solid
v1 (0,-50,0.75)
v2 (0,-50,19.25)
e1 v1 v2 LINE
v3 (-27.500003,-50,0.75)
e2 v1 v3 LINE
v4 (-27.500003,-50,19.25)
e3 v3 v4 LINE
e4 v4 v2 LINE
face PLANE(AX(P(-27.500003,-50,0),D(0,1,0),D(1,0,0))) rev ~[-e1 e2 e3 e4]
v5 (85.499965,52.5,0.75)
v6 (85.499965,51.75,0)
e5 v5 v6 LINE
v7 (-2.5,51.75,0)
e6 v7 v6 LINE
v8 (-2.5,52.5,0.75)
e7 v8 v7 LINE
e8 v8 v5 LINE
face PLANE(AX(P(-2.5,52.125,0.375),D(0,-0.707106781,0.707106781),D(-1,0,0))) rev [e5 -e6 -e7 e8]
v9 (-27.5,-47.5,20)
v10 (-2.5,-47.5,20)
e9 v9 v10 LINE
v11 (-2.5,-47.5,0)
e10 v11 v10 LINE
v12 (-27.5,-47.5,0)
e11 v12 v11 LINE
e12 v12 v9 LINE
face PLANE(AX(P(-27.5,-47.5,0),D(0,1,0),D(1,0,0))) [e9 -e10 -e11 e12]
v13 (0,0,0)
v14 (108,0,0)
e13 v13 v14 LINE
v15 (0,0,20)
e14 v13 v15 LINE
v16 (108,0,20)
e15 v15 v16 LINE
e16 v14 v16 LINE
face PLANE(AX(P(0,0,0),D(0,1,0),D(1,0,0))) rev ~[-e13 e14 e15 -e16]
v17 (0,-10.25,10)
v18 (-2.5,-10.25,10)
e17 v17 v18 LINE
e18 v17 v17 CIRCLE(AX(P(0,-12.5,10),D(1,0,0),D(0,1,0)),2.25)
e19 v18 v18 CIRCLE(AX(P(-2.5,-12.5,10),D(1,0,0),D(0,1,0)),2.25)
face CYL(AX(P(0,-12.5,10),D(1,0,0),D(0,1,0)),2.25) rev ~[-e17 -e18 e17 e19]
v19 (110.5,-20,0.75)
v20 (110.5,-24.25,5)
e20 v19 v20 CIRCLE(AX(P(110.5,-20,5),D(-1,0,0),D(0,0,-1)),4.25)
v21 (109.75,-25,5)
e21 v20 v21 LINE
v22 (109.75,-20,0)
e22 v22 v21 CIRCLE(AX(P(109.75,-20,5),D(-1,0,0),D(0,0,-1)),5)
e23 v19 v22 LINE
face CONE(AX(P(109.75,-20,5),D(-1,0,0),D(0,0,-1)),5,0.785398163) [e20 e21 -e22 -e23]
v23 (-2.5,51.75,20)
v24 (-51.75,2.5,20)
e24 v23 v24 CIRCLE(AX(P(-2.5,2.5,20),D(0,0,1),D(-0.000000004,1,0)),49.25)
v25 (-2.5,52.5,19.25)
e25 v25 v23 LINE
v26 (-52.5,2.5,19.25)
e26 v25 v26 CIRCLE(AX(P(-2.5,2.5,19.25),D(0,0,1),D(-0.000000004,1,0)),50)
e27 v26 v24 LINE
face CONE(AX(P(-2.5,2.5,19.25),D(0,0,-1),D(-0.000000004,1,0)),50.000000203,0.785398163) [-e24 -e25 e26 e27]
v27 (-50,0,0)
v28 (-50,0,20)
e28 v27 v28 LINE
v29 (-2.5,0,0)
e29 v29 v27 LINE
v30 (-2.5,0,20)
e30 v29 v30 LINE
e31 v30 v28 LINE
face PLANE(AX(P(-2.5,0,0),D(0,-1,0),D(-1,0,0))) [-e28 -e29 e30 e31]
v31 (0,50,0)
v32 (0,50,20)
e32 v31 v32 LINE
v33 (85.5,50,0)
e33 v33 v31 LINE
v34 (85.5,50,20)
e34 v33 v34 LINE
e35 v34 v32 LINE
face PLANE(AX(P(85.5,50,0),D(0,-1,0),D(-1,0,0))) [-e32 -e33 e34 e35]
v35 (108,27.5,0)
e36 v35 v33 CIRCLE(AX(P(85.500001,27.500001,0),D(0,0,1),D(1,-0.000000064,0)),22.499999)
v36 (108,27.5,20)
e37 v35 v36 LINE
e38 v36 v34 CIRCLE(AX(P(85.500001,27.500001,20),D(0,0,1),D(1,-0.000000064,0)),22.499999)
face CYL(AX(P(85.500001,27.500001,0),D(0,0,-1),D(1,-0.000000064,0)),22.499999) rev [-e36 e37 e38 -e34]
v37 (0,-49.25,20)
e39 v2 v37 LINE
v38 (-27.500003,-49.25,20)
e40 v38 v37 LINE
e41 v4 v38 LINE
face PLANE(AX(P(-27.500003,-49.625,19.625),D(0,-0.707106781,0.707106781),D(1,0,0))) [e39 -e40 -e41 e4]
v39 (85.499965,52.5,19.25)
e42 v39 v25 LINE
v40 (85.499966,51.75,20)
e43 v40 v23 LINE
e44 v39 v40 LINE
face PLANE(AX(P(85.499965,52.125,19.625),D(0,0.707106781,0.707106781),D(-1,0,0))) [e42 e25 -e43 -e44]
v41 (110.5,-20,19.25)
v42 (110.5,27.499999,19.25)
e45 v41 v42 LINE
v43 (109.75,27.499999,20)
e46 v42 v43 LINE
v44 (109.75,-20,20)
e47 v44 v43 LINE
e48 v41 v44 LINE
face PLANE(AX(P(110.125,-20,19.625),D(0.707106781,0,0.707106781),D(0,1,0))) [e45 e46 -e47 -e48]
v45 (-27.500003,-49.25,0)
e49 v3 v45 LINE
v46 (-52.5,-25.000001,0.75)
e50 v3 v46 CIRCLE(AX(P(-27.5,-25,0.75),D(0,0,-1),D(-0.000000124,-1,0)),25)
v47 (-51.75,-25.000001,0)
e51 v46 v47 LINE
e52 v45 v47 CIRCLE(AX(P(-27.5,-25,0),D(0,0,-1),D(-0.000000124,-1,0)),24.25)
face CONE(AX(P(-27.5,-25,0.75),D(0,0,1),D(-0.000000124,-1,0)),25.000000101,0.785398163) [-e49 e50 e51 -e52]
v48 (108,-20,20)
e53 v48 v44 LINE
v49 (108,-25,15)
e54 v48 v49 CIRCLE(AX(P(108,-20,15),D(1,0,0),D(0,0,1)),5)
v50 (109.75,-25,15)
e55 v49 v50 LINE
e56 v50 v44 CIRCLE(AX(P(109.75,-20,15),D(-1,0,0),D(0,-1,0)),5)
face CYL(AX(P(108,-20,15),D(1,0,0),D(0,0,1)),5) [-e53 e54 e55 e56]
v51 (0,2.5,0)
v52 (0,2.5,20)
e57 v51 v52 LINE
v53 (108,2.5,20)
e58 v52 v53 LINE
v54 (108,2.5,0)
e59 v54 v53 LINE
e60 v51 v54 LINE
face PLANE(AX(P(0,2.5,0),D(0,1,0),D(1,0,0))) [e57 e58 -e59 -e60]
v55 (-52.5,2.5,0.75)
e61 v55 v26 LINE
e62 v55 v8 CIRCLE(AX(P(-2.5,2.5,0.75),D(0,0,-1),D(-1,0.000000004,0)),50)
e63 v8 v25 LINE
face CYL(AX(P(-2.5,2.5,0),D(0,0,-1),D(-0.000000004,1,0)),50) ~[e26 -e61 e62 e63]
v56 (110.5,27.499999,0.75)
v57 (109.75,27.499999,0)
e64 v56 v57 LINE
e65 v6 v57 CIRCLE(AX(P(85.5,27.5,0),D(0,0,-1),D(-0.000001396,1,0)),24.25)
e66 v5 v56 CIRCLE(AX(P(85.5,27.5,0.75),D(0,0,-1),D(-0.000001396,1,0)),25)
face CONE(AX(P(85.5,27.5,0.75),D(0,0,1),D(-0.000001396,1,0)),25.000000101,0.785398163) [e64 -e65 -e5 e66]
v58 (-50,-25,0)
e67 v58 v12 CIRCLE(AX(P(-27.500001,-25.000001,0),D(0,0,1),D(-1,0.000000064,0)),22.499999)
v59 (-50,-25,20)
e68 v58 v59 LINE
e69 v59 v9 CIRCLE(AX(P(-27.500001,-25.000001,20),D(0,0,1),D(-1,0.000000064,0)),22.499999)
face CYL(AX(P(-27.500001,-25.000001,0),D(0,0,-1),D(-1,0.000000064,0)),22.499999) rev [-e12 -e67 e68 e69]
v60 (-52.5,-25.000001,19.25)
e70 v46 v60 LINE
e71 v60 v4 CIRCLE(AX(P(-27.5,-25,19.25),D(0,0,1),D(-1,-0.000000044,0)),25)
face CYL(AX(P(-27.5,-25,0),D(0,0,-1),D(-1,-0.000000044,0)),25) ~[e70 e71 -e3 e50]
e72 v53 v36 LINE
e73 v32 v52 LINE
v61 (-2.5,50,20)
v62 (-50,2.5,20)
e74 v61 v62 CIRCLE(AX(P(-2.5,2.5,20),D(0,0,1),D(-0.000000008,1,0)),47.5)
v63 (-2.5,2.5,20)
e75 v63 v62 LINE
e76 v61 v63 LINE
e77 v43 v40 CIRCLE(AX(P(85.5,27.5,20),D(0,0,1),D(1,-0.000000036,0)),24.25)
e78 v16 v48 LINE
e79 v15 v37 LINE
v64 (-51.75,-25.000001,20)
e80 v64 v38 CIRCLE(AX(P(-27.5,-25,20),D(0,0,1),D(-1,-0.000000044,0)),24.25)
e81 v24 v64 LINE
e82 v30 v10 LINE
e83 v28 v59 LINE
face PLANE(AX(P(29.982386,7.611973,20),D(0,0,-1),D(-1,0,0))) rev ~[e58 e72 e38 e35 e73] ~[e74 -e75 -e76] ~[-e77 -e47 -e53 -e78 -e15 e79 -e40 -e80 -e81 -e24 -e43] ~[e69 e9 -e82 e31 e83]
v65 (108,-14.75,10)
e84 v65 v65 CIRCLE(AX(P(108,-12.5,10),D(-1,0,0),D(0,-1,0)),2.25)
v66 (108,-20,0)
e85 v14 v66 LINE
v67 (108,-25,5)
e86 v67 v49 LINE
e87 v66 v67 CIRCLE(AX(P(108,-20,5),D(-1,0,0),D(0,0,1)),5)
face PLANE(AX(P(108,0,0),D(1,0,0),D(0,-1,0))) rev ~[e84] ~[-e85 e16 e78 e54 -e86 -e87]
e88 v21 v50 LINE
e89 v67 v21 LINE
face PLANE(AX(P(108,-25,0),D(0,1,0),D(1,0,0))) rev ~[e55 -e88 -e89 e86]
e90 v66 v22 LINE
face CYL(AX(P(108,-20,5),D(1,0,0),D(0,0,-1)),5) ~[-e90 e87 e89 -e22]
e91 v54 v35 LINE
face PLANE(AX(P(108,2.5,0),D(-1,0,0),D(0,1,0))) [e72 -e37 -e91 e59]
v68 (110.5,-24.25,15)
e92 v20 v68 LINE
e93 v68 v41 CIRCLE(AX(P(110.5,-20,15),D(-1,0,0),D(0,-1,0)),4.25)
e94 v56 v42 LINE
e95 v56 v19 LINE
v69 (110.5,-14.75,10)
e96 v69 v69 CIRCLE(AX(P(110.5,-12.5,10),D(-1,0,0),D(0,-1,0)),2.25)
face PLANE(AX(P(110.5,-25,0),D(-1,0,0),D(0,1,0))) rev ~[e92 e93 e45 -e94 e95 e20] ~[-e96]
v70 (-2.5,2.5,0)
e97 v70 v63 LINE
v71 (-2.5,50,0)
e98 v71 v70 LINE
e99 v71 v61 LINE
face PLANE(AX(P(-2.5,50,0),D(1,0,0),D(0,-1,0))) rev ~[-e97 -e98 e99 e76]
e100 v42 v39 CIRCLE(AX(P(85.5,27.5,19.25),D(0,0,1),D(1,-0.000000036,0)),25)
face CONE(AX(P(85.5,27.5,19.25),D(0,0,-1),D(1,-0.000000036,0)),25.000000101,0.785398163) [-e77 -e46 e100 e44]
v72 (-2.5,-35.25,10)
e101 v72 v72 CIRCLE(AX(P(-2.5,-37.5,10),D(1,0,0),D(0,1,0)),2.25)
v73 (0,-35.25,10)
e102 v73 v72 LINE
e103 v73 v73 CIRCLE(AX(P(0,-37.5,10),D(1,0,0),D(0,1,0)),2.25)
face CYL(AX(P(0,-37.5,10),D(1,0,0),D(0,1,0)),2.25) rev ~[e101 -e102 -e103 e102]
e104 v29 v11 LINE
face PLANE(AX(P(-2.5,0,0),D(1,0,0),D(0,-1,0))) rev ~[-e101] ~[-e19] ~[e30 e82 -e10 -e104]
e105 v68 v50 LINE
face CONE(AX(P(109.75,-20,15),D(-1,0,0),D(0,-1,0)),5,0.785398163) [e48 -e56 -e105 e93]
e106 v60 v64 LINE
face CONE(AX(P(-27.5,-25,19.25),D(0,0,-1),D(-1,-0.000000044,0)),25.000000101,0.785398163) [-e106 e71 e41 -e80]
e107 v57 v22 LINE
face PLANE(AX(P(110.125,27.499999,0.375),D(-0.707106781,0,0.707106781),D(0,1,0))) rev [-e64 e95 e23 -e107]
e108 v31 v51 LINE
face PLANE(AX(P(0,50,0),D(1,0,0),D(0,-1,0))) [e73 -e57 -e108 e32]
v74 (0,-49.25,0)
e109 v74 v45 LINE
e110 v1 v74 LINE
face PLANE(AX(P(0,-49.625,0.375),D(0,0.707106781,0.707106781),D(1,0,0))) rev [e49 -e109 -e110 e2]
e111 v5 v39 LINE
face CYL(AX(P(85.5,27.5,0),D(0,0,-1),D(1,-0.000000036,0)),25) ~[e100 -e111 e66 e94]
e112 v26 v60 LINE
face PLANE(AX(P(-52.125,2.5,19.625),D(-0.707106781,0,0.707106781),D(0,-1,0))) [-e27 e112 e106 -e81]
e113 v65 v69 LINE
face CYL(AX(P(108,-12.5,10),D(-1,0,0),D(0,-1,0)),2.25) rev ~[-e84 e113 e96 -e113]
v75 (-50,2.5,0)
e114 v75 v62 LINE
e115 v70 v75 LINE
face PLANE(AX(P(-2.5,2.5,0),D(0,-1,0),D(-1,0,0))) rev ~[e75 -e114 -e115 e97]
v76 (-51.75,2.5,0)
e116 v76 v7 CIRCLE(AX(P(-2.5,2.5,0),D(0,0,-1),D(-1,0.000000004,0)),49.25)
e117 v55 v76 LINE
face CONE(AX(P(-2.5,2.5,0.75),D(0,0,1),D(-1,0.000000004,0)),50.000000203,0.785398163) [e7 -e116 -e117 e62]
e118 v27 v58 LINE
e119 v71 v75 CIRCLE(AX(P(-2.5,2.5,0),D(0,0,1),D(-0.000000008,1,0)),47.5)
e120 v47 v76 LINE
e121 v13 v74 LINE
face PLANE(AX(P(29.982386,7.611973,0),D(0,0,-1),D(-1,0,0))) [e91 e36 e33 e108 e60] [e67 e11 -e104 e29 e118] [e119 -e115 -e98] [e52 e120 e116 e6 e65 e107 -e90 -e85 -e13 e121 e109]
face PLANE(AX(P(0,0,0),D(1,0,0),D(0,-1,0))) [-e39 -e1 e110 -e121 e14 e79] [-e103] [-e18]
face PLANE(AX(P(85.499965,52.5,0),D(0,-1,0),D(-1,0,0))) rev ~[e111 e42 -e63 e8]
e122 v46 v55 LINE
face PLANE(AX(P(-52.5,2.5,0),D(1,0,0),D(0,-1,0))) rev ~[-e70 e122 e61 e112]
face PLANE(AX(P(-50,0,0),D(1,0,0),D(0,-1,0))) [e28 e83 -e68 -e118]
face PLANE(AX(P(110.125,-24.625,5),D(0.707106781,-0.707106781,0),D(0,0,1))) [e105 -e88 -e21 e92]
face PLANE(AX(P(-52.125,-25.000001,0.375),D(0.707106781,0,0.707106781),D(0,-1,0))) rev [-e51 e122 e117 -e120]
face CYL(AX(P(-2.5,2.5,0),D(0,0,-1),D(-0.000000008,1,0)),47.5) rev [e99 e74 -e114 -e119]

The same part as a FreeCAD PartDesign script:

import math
import FreeCAD as App
import Part
import Sketcher
from FreeCAD import Vector


def edges_at(feature, points):
    """Names of the edges that pass closest to the given points."""
    edges = feature.Shape.Edges
    near = lambda p: min(range(len(edges)), key=lambda i: edges[i].distToShape(Part.Vertex(*p))[0])
    return sorted({f"Edge{near(p) + 1}" for p in points})

doc = App.newDocument("Part")
body = doc.addObject("PartDesign::Body", "Body")

# Sketch on XY plane
sketch1 = body.newObject("Sketcher::SketchObject", "Sketch")
sketch1.AttachmentSupport = (doc.getObject("XY_Plane"), [""])
sketch1.MapMode = "FlatFace"
sketch1.addGeometry([
    Part.LineSegment(Vector(0, -50, 0), Vector(0, 0, 0)),  # 0
    Part.LineSegment(Vector(0, 0, 0), Vector(108, 0, 0)),  # 1
    Part.LineSegment(Vector(108, 0, 0), Vector(108, -25, 0)),  # 2
    Part.LineSegment(Vector(108, -25, 0), Vector(110.5, -25, 0)),  # 3
    Part.LineSegment(Vector(110.5, -25, 0), Vector(110.5, 27.499999, 0)),  # 4
    Part.ArcOfCircle(Part.Circle(Vector(85.5, 27.5, 0), Vector(0, 0, 1), 25), math.radians(-0.000002), math.radians(90.00008)),  # 5
    Part.LineSegment(Vector(85.499965, 52.5, 0), Vector(-2.5, 52.5, 0)),  # 6
    Part.ArcOfCircle(Part.Circle(Vector(-2.5, 2.5, 0), Vector(0, 0, 1), 50), math.radians(90), math.radians(180)),  # 7
    Part.LineSegment(Vector(-52.5, 2.5, 0), Vector(-52.5, -25.000001, 0)),  # 8
    Part.ArcOfCircle(Part.Circle(Vector(-27.5, -25, 0), Vector(0, 0, 1), 25), math.radians(-179.999997), math.radians(-90.000007)),  # 9
    Part.LineSegment(Vector(-27.500003, -50, 0), Vector(0, -50, 0)),  # 10
    Part.LineSegment(Vector(-2.5, 0, 0), Vector(-2.5, -47.5, 0)),  # 11
    Part.LineSegment(Vector(-2.5, -47.5, 0), Vector(-27.5, -47.5, 0)),  # 12
    Part.ArcOfCircle(Part.Circle(Vector(-27.500001, -25.000001, 0), Vector(0, 0, 1), 22.499999), math.radians(179.999996), math.radians(270.000004)),  # 13
    Part.LineSegment(Vector(-50, -25, 0), Vector(-50, 0, 0)),  # 14
    Part.LineSegment(Vector(-50, 0, 0), Vector(-2.5, 0, 0)),  # 15
    Part.LineSegment(Vector(0, 2.5, 0), Vector(0, 50, 0)),  # 16
    Part.LineSegment(Vector(0, 50, 0), Vector(85.5, 50, 0)),  # 17
    Part.ArcOfCircle(Part.Circle(Vector(85.500001, 27.500001, 0), Vector(0, 0, 1), 22.499999), math.radians(-0.000004), math.radians(90.000004)),  # 18
    Part.LineSegment(Vector(108, 27.5, 0), Vector(108, 2.5, 0)),  # 19
    Part.LineSegment(Vector(108, 2.5, 0), Vector(0, 2.5, 0)),  # 20
    Part.LineSegment(Vector(-2.5, 50, 0), Vector(-2.5, 2.5, 0)),  # 21
    Part.LineSegment(Vector(-2.5, 2.5, 0), Vector(-50, 2.5, 0)),  # 22
    Part.ArcOfCircle(Part.Circle(Vector(-2.5, 2.5, 0), Vector(0, 0, 1), 47.5), math.radians(90), math.radians(180)),  # 23
], False)
sketch1.addConstraint([
    Sketcher.Constraint("Coincident", 0, 2, 1, 1),
    Sketcher.Constraint("Coincident", 1, 2, 2, 1),
    Sketcher.Constraint("Coincident", 2, 2, 3, 1),
    Sketcher.Constraint("Coincident", 3, 2, 4, 1),
    Sketcher.Constraint("Coincident", 4, 2, 5, 1),
    Sketcher.Constraint("Coincident", 5, 2, 6, 1),
    Sketcher.Constraint("Coincident", 6, 2, 7, 1),
    Sketcher.Constraint("Coincident", 7, 2, 8, 1),
    Sketcher.Constraint("Coincident", 8, 2, 9, 1),
    Sketcher.Constraint("Coincident", 9, 2, 10, 1),
    Sketcher.Constraint("Coincident", 10, 2, 0, 1),
    Sketcher.Constraint("Coincident", 11, 2, 12, 1),
    Sketcher.Constraint("Coincident", 12, 2, 13, 2),
    Sketcher.Constraint("Coincident", 13, 1, 14, 1),
    Sketcher.Constraint("Coincident", 14, 2, 15, 1),
    Sketcher.Constraint("Coincident", 15, 2, 11, 1),
    Sketcher.Constraint("Coincident", 16, 2, 17, 1),
    Sketcher.Constraint("Coincident", 17, 2, 18, 2),
    Sketcher.Constraint("Coincident", 18, 1, 19, 1),
    Sketcher.Constraint("Coincident", 19, 2, 20, 1),
    Sketcher.Constraint("Coincident", 20, 2, 16, 1),
    Sketcher.Constraint("Coincident", 21, 2, 22, 1),
    Sketcher.Constraint("Coincident", 22, 2, 23, 2),
    Sketcher.Constraint("Coincident", 23, 1, 21, 1),
    Sketcher.Constraint("Vertical", 0),
    Sketcher.Constraint("Horizontal", 1),
    Sketcher.Constraint("Vertical", 2),
    Sketcher.Constraint("Horizontal", 3),
    Sketcher.Constraint("Vertical", 4),
    Sketcher.Constraint("Horizontal", 6),
    Sketcher.Constraint("Vertical", 8),
    Sketcher.Constraint("Horizontal", 10),
    Sketcher.Constraint("Vertical", 11),
    Sketcher.Constraint("Horizontal", 12),
    Sketcher.Constraint("Vertical", 14),
    Sketcher.Constraint("Horizontal", 15),
    Sketcher.Constraint("Vertical", 16),
    Sketcher.Constraint("Horizontal", 17),
    Sketcher.Constraint("Vertical", 19),
    Sketcher.Constraint("Horizontal", 20),
    Sketcher.Constraint("Vertical", 21),
    Sketcher.Constraint("Horizontal", 22),
    Sketcher.Constraint("Coincident", 0, 2, -1, 1),
    Sketcher.Constraint("Coincident", 13, 3, 9, 3),
    Sketcher.Constraint("Coincident", 18, 3, 5, 3),
    Sketcher.Constraint("Coincident", 23, 3, 7, 3),
    Sketcher.Constraint("Coincident", 21, 2, 7, 3),
    Sketcher.Constraint("PointOnObject", 14, 2, -1),
    Sketcher.Constraint("PointOnObject", 16, 2, -2),
    Sketcher.Constraint("Radius", 5, 25.0),
    Sketcher.Constraint("Radius", 7, 50.0),
    Sketcher.Constraint("Radius", 9, 25.0),
    Sketcher.Constraint("Radius", 13, 22.499999),
    Sketcher.Constraint("Radius", 18, 22.499999),
    Sketcher.Constraint("Radius", 23, 47.5),
    Sketcher.Constraint("DistanceX", 1, 1, 1, 2, 108.0),
    Sketcher.Constraint("DistanceX", 12, 2, 12, 1, 25.0),
    Sketcher.Constraint("DistanceX", 20, 2, 20, 1, 108.0),
    Sketcher.Constraint("DistanceY", 0, 1, 0, 2, 50.0),
    Sketcher.Constraint("DistanceY", 2, 2, 2, 1, 25.0),
    Sketcher.Constraint("DistanceY", 14, 1, 14, 2, 25.0),
    Sketcher.Constraint("DistanceY", 19, 2, 19, 1, 25.0),
    Sketcher.Constraint("DistanceX", 15, 1, 15, 2, 47.5),
    Sketcher.Constraint("DistanceX", 17, 1, 17, 2, 85.5),
    Sketcher.Constraint("DistanceY", 4, 1, 4, 2, 52.499999),
    Sketcher.Constraint("DistanceY", 8, 2, 8, 1, 27.500001),
    Sketcher.Constraint("DistanceY", 16, 1, 16, 2, 47.5),
    Sketcher.Constraint("DistanceY", 8, 2, -1, 1, 25.000001),
    Sketcher.Constraint("DistanceX", 13, 1, -1, 1, 50.0),
    Sketcher.Constraint("DistanceY", -1, 1, 16, 2, 50.0),
    Sketcher.Constraint("DistanceX", 9, 3, 6, 2, 25.0),
    Sketcher.Constraint("DistanceX", 6, 2, 6, 1, 87.999965),
    Sketcher.Constraint("DistanceX", 10, 1, 10, 2, 27.500003),
])
pad1 = body.newObject("PartDesign::Pad", "Pad")
pad1.Profile = sketch1
pad1.Length = 20

# Sketch on YZ plane
sketch2 = body.newObject("Sketcher::SketchObject", "Sketch001")
sketch2.AttachmentSupport = (doc.getObject("YZ_Plane"), [""])
sketch2.MapMode = "FlatFace"
sketch2.addGeometry([
    Part.Circle(Vector(-37.5, 10, 0), Vector(0, 0, 1), 2.25),
    Part.Circle(Vector(-12.5, 10, 0), Vector(0, 0, 1), 2.25),
], False)
sketch2.addConstraint([
    Sketcher.Constraint("Equal", 0, 1),
    Sketcher.Constraint("Horizontal", 0, 3, 1, 3),
    Sketcher.Constraint("Diameter", 0, 4.5),
    Sketcher.Constraint("DistanceY", -1, 1, 0, 3, 10.0),
    Sketcher.Constraint("DistanceX", 0, 3, 1, 3, 25.0),
    Sketcher.Constraint("DistanceX", 0, 3, -1, 1, 37.5),
])
pocket1 = body.newObject("PartDesign::Pocket", "Pocket")
pocket1.Profile = sketch2
pocket1.Length = 2.5

# Sketch on YZ plane
sketch3 = body.newObject("Sketcher::SketchObject", "Sketch002")
sketch3.AttachmentSupport = (doc.getObject("YZ_Plane"), [""])
sketch3.MapMode = "FlatFace"
sketch3.AttachmentOffset = App.Placement(Vector(0, 0, 108), App.Rotation())
sketch3.addGeometry(Part.Circle(Vector(-12.5, 10, 0), Vector(0, 0, 1), 2.25), False)
sketch3.addConstraint([
    Sketcher.Constraint("Diameter", 0, 4.5),
    Sketcher.Constraint("DistanceY", -1, 1, 0, 3, 10.0),
    Sketcher.Constraint("DistanceX", 0, 3, -1, 1, 12.5),
])
pocket2 = body.newObject("PartDesign::Pocket", "Pocket001")
pocket2.Profile = sketch3
pocket2.Length = 2.5
pocket2.Reversed = True
doc.recompute()

fillet = body.newObject("PartDesign::Fillet", "Fillet")
fillet.Base = (pocket2, edges_at(pocket2, [(109.25, -25, 0), (109.25, -25, 20)]))
fillet.Radius = 5
doc.recompute()

chamfer = body.newObject("PartDesign::Chamfer", "Chamfer")
chamfer.Base = (fillet, edges_at(fillet, [(-37.855, 37.855, 20), (-37.855, 37.855, 0)]))
chamfer.Size = 0.75

doc.recompute()
